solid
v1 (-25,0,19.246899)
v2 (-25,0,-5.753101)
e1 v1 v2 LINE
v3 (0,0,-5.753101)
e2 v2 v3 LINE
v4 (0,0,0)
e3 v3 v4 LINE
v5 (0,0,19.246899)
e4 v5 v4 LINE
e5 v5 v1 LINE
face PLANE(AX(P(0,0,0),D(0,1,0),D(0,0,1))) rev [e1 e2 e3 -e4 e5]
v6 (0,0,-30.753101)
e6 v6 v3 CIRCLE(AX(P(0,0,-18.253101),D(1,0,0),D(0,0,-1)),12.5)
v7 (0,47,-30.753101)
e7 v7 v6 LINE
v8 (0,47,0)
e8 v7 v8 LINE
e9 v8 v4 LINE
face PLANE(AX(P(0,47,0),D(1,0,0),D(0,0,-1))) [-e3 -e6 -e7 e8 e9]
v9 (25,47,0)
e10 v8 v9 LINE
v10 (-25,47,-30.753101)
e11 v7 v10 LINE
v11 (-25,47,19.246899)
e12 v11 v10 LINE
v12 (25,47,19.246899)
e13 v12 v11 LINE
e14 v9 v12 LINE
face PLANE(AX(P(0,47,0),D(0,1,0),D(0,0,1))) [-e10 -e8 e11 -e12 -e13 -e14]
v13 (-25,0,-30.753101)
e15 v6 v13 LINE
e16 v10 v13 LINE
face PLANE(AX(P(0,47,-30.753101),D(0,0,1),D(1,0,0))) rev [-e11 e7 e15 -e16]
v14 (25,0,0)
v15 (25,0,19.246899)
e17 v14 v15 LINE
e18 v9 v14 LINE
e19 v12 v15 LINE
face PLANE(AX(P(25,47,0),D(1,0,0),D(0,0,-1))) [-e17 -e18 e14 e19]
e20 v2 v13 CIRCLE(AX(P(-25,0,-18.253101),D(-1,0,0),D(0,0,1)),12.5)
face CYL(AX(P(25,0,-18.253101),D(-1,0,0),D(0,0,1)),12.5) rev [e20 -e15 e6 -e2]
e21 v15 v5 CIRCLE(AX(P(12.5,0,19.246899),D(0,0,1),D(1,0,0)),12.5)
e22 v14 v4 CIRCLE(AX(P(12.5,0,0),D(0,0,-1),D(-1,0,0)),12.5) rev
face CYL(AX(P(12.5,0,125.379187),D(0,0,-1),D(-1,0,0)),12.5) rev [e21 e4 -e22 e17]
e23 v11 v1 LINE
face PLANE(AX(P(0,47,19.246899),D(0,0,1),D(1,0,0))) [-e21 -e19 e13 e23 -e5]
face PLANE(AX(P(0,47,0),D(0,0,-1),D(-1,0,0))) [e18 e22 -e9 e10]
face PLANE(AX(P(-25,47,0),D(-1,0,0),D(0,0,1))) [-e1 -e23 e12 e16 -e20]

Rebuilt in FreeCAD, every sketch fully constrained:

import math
import FreeCAD as App
import Part
import Sketcher
from FreeCAD import Vector
Q = App.Units.Quantity


def add_polygon(sketch, points):
    """Adds a closed chain of lines whose ends are joined by coincident constraints."""
    first, n = sketch.GeometryCount, len(points)
    for a, b in zip(points, points[1:] + points[:1]):
        sketch.addGeometry(Part.LineSegment(App.Vector(*a, 0), App.Vector(*b, 0)), False)
    for i in range(n):
        sketch.addConstraint(Sketcher.Constraint("Coincident", first + i, 2, first + (i + 1) % n, 1))

doc = App.newDocument("Part")
body = doc.addObject("PartDesign::Body", "Body")

sketch1 = body.newObject("Sketcher::SketchObject", "Sketch")
sketch1.AttachmentSupport = (doc.getObject("XZ_Plane"), [""])
sketch1.MapMode = "FlatFace"
add_polygon(sketch1, [(0, 0), (0, -30.753101), (-25, -30.753101), (-25, 19.246899), (0, 19.246899), (25, 19.246899), (25, 0)])
sketch1.addConstraint(Sketcher.Constraint("Vertical", 0))
sketch1.addConstraint(Sketcher.Constraint("Horizontal", 1))
sketch1.addConstraint(Sketcher.Constraint("Vertical", 2))
sketch1.addConstraint(Sketcher.Constraint("Horizontal", 3))
sketch1.addConstraint(Sketcher.Constraint("Horizontal", 4))
sketch1.addConstraint(Sketcher.Constraint("Vertical", 5))
sketch1.addConstraint(Sketcher.Constraint("Horizontal", 6))
sketch1.addConstraint(Sketcher.Constraint("Coincident", 6, 2, -1, 1))
sketch1.addConstraint(Sketcher.Constraint("PointOnObject", 3, 2, -2))
sketch1.addConstraint(Sketcher.Constraint("Equal", 3, 4))
sketch1.addConstraint(Sketcher.Constraint("DistanceX", 1, 2, 1, 1, Q("25 mm")))
sketch1.addConstraint(Sketcher.Constraint("DistanceY", 2, 1, 2, 2, Q("50 mm")))
sketch1.addConstraint(Sketcher.Constraint("DistanceY", 0, 2, 0, 1, Q("30.753101 mm")))
pad1 = body.newObject("PartDesign::Pad", "Pad")
pad1.Profile = sketch1
pad1.Length = 47
pad1.Reversed = True

sketch2 = body.newObject("Sketcher::SketchObject", "Sketch001")
sketch2.AttachmentSupport = (doc.getObject("XY_Plane"), [""])
sketch2.MapMode = "FlatFace"
sketch2.AttachmentOffset = App.Placement(Vector(0, 0, 19.246899), App.Rotation())
sketch2.addGeometry(Part.ArcOfCircle(Part.Circle(Vector(12.5, 0, 0), Vector(0, 0, 1), 12.5), math.radians(0), math.radians(180)), False)
sketch2.addGeometry(Part.LineSegment(Vector(0, 0, 0), Vector(0, -441.732923, 0)), False)
sketch2.addGeometry(Part.LineSegment(Vector(0, -441.732923, 0), Vector(25, -441.732923, 0)), False)
sketch2.addGeometry(Part.LineSegment(Vector(25, -441.732923, 0), Vector(25, 0, 0)), False)
sketch2.addConstraint(Sketcher.Constraint("Tangent", 0, 2, 1, 1))
sketch2.addConstraint(Sketcher.Constraint("Coincident", 1, 2, 2, 1))
sketch2.addConstraint(Sketcher.Constraint("Coincident", 2, 2, 3, 1))
sketch2.addConstraint(Sketcher.Constraint("Tangent", 3, 2, 0, 1))
sketch2.addConstraint(Sketcher.Constraint("Vertical", 1))
sketch2.addConstraint(Sketcher.Constraint("Horizontal", 2))
sketch2.addConstraint(Sketcher.Constraint("Vertical", 3))
sketch2.addConstraint(Sketcher.Constraint("Coincident", 0, 2, -1, 1))
sketch2.addConstraint(Sketcher.Constraint("Radius", 0, Q("12.5 mm")))
sketch2.addConstraint(Sketcher.Constraint("DistanceY", 1, 2, 1, 1, Q("441.732923 mm")))
pocket1 = body.newObject("PartDesign::Pocket", "Pocket")
pocket1.Profile = sketch2
pocket1.Type = "ThroughAll"
pocket1.Midplane = True

sketch3 = body.newObject("Sketcher::SketchObject", "Sketch002")
sketch3.AttachmentSupport = (doc.getObject("YZ_Plane"), [""])
sketch3.MapMode = "FlatFace"
sketch3.AttachmentOffset = App.Placement(Vector(0, 0, -25), App.Rotation())
sketch3.addGeometry(Part.Circle(Vector(0, -18.253101, 0), Vector(0, 0, 1), 12.5), False)
sketch3.addConstraint(Sketcher.Constraint("PointOnObject", 0, 3, -2))
sketch3.addConstraint(Sketcher.Constraint("Diameter", 0, Q("25 mm")))
sketch3.addConstraint(Sketcher.Constraint("DistanceY", 0, 3, -1, 1, Q("18.253101 mm")))
pocket2 = body.newObject("PartDesign::Pocket", "Pocket001")
pocket2.Profile = sketch3
pocket2.Length = 50
pocket2.Reversed = True

doc.recompute()
